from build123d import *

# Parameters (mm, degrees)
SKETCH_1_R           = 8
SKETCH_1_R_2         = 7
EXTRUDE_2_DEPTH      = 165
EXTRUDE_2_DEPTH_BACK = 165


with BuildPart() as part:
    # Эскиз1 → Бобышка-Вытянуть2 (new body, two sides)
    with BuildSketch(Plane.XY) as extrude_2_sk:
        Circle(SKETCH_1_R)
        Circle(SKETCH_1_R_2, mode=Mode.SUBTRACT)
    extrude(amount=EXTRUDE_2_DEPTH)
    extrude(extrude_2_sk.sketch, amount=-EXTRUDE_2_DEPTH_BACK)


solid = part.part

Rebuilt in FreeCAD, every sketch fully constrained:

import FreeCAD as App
import Part
import Sketcher

V = App.Vector

doc = App.newDocument("Part")
params = doc.addObject("Spreadsheet::Sheet", "Params")
for row, (alias, value) in enumerate([
    ("sketch1_diameter", "16 mm"),
    ("sketch1_diameter2", "14 mm"),
    ("pad1_length", "165 mm"),
    ("pad1_length2", "165 mm"),
], start=1):
    params.set(f"A{row}", alias)
    params.set(f"B{row}", "=" + value)
    params.setAlias(f"B{row}", alias)

body = doc.addObject("PartDesign::Body", "Body")

# Sketch on XY plane
sketch1 = body.newObject("Sketcher::SketchObject", "Sketch")
sketch1.AttachmentSupport = (doc.getObject("XY_Plane"), [""])
sketch1.MapMode = "FlatFace"
sketch1.addGeometry([
    Part.Circle(V(0, 0, 0), V(0, 0, 1), 8),
    Part.Circle(V(0, 0, 0), V(0, 0, 1), 7),
], False)
sketch1.addConstraint([
    Sketcher.Constraint("Coincident", 0, 3, -1, 1),
    Sketcher.Constraint("Coincident", 1, 3, -1, 1),
    Sketcher.Constraint("Diameter", 0, 16.0),
    Sketcher.Constraint("Diameter", 1, 14.0),
])
sketch1.setExpression("Constraints[2]", "Params.sketch1_diameter")
sketch1.setExpression("Constraints[3]", "Params.sketch1_diameter2")
pad1 = body.newObject("PartDesign::Pad", "Pad")
pad1.Profile = sketch1
pad1.Type = "TwoLengths"
pad1.setExpression("Length", "Params.pad1_length")
pad1.setExpression("Length2", "Params.pad1_length2")

doc.recompute()
